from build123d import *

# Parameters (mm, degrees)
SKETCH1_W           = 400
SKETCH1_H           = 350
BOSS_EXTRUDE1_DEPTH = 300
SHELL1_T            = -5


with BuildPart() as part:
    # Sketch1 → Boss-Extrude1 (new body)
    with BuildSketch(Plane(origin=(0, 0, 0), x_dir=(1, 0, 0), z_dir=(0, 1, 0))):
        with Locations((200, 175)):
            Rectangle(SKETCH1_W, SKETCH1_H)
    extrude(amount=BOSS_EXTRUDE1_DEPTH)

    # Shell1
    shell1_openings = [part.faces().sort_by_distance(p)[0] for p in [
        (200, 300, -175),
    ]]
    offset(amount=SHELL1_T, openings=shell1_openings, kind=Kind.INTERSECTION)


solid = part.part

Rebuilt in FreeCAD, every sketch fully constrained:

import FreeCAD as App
import Part
import Sketcher
Q = App.Units.Quantity


def faces_at(feature, points):
    """Names of the faces that lie closest to the given points."""
    faces = feature.Shape.Faces
    near = lambda p: min(range(len(faces)), key=lambda i: faces[i].distToShape(Part.Vertex(*p))[0])
    return sorted({f"Face{near(p) + 1}" for p in points})

doc = App.newDocument("Part")
body = doc.addObject("PartDesign::Body", "Body")

# Sketch on XZ plane
sketch1 = body.newObject("Sketcher::SketchObject", "Sketch")
sketch1.AttachmentSupport = (doc.getObject("XZ_Plane"), [""])
sketch1.MapMode = "FlatFace"
sketch1.addGeometry([
    Part.LineSegment(App.Vector(0, -350, 0), App.Vector(0, 0, 0)),
    Part.LineSegment(App.Vector(0, 0, 0), App.Vector(400, 0, 0)),
    Part.LineSegment(App.Vector(400, 0, 0), App.Vector(400, -350, 0)),
    Part.LineSegment(App.Vector(400, -350, 0), App.Vector(0, -350, 0)),
], False)
sketch1.addConstraint([
    Sketcher.Constraint("Coincident", 0, 2, 1, 1),
    Sketcher.Constraint("Coincident", 1, 2, 2, 1),
    Sketcher.Constraint("Coincident", 2, 2, 3, 1),
    Sketcher.Constraint("Coincident", 3, 2, 0, 1),
    Sketcher.Constraint("Vertical", 0),
    Sketcher.Constraint("Horizontal", 1),
    Sketcher.Constraint("Vertical", 2),
    Sketcher.Constraint("Horizontal", 3),
    Sketcher.Constraint("Coincident", 0, 2, -1, 1),
    Sketcher.Constraint("DistanceX", 1, 1, 1, 2, Q("400 mm")),
    Sketcher.Constraint("DistanceY", 0, 1, 0, 2, Q("350 mm")),
])
pad1 = body.newObject("PartDesign::Pad", "Pad")
pad1.Profile = sketch1
pad1.Length = 300
pad1.Reversed = True
doc.recompute()

thickness = body.newObject("PartDesign::Thickness", "Thickness")
thickness.Base = (pad1, faces_at(pad1, [(200, 300, -175)]))
thickness.Value = 5
thickness.Reversed = True
thickness.Join = "Intersection"

doc.recompute()
